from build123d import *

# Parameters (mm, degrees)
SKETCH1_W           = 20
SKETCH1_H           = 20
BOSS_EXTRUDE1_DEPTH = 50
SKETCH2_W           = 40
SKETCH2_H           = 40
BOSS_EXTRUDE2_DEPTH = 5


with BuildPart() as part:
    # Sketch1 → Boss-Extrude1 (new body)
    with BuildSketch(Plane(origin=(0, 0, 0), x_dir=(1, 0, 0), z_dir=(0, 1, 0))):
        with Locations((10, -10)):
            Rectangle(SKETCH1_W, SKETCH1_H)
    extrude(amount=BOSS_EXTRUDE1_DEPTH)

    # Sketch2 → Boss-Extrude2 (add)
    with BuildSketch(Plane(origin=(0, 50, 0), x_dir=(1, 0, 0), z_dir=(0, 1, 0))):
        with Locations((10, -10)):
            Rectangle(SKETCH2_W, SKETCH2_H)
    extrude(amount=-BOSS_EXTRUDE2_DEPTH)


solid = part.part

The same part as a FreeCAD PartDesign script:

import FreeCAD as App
import Part
import Sketcher
Q = App.Units.Quantity


def add_polygon(sketch, points):
    """Adds a closed chain of lines whose ends are joined by coincident constraints."""
    first, n = sketch.GeometryCount, len(points)
    for a, b in zip(points, points[1:] + points[:1]):
        sketch.addGeometry(Part.LineSegment(App.Vector(*a, 0), App.Vector(*b, 0)), False)
    for i in range(n):
        sketch.addConstraint(Sketcher.Constraint("Coincident", first + i, 2, first + (i + 1) % n, 1))

doc = App.newDocument("Part")
body = doc.addObject("PartDesign::Body", "Body")

sketch1 = doc.addObject("Sketcher::SketchObject", "Sketch")
body.addObject(sketch1)
sketch1.AttachmentSupport = (doc.XZ_Plane, [""])
sketch1.MapMode = "FlatFace"
add_polygon(sketch1, [(0, 0), (0, 20), (20, 20), (20, 0)])
sketch1.addConstraint(Sketcher.Constraint("Vertical", 0))
sketch1.addConstraint(Sketcher.Constraint("Horizontal", 1))
sketch1.addConstraint(Sketcher.Constraint("Vertical", 2))
sketch1.addConstraint(Sketcher.Constraint("Horizontal", 3))
sketch1.addConstraint(Sketcher.Constraint("Coincident", 3, 2, -1, 1))
sketch1.addConstraint(Sketcher.Constraint("Equal", 3, 0))
sketch1.addConstraint(Sketcher.Constraint("DistanceX", 1, 1, 1, 2, Q("20 mm")))
pad1 = doc.addObject("PartDesign::Pad", "Pad")
body.addObject(pad1)
pad1.Profile = sketch1
pad1.Length = 50
pad1.Reversed = True

sketch2 = doc.addObject("Sketcher::SketchObject", "Sketch001")
body.addObject(sketch2)
sketch2.AttachmentSupport = (doc.XZ_Plane, [""])
sketch2.MapMode = "FlatFace"
sketch2.AttachmentOffset = App.Placement(App.Vector(0, 0, -50), App.Rotation())
add_polygon(sketch2, [(-10, -10), (-10, 30), (30, 30), (30, -10)])
sketch2.addConstraint(Sketcher.Constraint("Vertical", 0))
sketch2.addConstraint(Sketcher.Constraint("Horizontal", 1))
sketch2.addConstraint(Sketcher.Constraint("Vertical", 2))
sketch2.addConstraint(Sketcher.Constraint("Horizontal", 3))
sketch2.addConstraint(Sketcher.Constraint("Equal", 3, 0))
sketch2.addConstraint(Sketcher.Constraint("DistanceX", 1, 1, 1, 2, Q("40 mm")))
sketch2.addConstraint(Sketcher.Constraint("DistanceX", 0, 2, -1, 1, Q("10 mm")))
sketch2.addConstraint(Sketcher.Constraint("DistanceY", -1, 1, 0, 2, Q("30 mm")))
pad2 = doc.addObject("PartDesign::Pad", "Pad001")
body.addObject(pad2)
pad2.Profile = sketch2
pad2.Length = 5

doc.recompute()
